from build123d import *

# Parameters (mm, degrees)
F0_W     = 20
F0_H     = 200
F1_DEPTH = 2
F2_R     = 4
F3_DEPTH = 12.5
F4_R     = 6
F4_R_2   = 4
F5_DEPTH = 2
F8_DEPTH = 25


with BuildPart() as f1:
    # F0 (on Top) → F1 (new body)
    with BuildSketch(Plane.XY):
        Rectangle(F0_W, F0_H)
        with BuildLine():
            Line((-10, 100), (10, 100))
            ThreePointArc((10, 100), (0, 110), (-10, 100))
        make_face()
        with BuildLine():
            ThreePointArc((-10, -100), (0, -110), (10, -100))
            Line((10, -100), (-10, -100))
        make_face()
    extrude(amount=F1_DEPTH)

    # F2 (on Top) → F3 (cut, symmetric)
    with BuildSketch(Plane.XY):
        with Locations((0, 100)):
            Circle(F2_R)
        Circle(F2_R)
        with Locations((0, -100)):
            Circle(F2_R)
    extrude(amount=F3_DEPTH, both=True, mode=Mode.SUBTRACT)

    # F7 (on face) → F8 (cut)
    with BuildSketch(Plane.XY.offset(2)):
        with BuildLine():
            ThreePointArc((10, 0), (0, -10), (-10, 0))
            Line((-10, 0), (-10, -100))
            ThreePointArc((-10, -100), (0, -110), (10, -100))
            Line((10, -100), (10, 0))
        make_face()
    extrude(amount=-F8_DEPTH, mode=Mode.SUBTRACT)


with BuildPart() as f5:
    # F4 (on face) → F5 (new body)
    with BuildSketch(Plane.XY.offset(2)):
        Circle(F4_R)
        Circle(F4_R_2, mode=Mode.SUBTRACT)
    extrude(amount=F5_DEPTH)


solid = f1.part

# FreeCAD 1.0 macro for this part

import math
import FreeCAD as App
import Part
import Sketcher

V = App.Vector
Q = App.Units.Quantity

doc = App.newDocument("Part")
body = doc.addObject("PartDesign::Body", "Body")

# Sketch on XY plane
sketch1 = body.newObject("Sketcher::SketchObject", "Sketch")
sketch1.AttachmentSupport = (doc.getObject("XY_Plane"), [""])
sketch1.MapMode = "FlatFace"
sketch1.addGeometry([
    Part.LineSegment(V(-10, 100, 0), V(-10, -100, 0)),
    Part.ArcOfCircle(Part.Circle(V(0, -100, 0), V(0, 0, 1), 10), math.radians(180), math.radians(360)),
    Part.LineSegment(V(10, -100, 0), V(10, 100, 0)),
    Part.ArcOfCircle(Part.Circle(V(0, 100, 0), V(0, 0, 1), 10), math.radians(0), math.radians(180)),
], False)
sketch1.addConstraint([
    Sketcher.Constraint("Tangent", 0, 2, 1, 1),
    Sketcher.Constraint("Tangent", 1, 2, 2, 1),
    Sketcher.Constraint("Tangent", 2, 2, 3, 1),
    Sketcher.Constraint("Tangent", 3, 2, 0, 1),
    Sketcher.Constraint("Vertical", 0),
    Sketcher.Constraint("Vertical", 2),
    Sketcher.Constraint("Symmetric", 1, 3, 3, 3, -1, 1),
    Sketcher.Constraint("Radius", 1, Q("10 mm")),
    Sketcher.Constraint("DistanceY", 0, 2, 0, 1, Q("200 mm")),
])
pad1 = body.newObject("PartDesign::Pad", "Pad")
pad1.Profile = sketch1
pad1.Length = 2

# Sketch on XY plane
sketch2 = body.newObject("Sketcher::SketchObject", "Sketch001")
sketch2.AttachmentSupport = (doc.getObject("XY_Plane"), [""])
sketch2.MapMode = "FlatFace"
sketch2.addGeometry([
    Part.Circle(V(0, 100, 0), V(0, 0, 1), 4),
    Part.Circle(V(0, 0, 0), V(0, 0, 1), 4),
    Part.Circle(V(0, -100, 0), V(0, 0, 1), 4),
], False)
sketch2.addConstraint([
    Sketcher.Constraint("Coincident", 1, 3, -1, 1),
    Sketcher.Constraint("Equal", 0, 1),
    Sketcher.Constraint("Equal", 1, 2),
    Sketcher.Constraint("Symmetric", 0, 3, 2, 3, -1, 1),
    Sketcher.Constraint("PointOnObject", 0, 3, -2),
    Sketcher.Constraint("Diameter", 0, Q("8 mm")),
    Sketcher.Constraint("DistanceY", -1, 1, 0, 3, Q("100 mm")),
])
pocket1 = body.newObject("PartDesign::Pocket", "Pocket")
pocket1.Profile = sketch2
pocket1.Length = 25
pocket1.Midplane = True

# Sketch on XY plane
sketch3 = body.newObject("Sketcher::SketchObject", "Sketch002")
sketch3.AttachmentSupport = (doc.getObject("XY_Plane"), [""])
sketch3.MapMode = "FlatFace"
sketch3.AttachmentOffset = App.Placement(V(0, 0, 2), App.Rotation())
sketch3.addGeometry([
    Part.ArcOfCircle(Part.Circle(V(0, 0, 0), V(0, 0, 1), 10), math.radians(180), math.radians(360)),
    Part.LineSegment(V(-10, 0, 0), V(-10, -100, 0)),
    Part.ArcOfCircle(Part.Circle(V(0, -100, 0), V(0, 0, 1), 10), math.radians(180), math.radians(360)),
    Part.LineSegment(V(10, -100, 0), V(10, 0, 0)),
], False)
sketch3.addConstraint([
    Sketcher.Constraint("Tangent", 0, 1, 1, 1),
    Sketcher.Constraint("Tangent", 1, 2, 2, 1),
    Sketcher.Constraint("Tangent", 2, 2, 3, 1),
    Sketcher.Constraint("Tangent", 3, 2, 0, 2),
    Sketcher.Constraint("Vertical", 1),
    Sketcher.Constraint("Vertical", 3),
    Sketcher.Constraint("Coincident", 0, 3, -1, 1),
    Sketcher.Constraint("Radius", 0, Q("10 mm")),
    Sketcher.Constraint("DistanceY", 1, 2, 1, 1, Q("100 mm")),
])
pocket2 = body.newObject("PartDesign::Pocket", "Pocket001")
pocket2.Profile = sketch3
pocket2.Length = 25
body2 = doc.addObject("PartDesign::Body", "Body001")

# Sketch on XY plane
sketch4 = body2.newObject("Sketcher::SketchObject", "Sketch003")
sketch4.AttachmentSupport = (doc.getObject("XY_Plane001"), [""])
sketch4.MapMode = "FlatFace"
sketch4.AttachmentOffset = App.Placement(V(0, 0, 2), App.Rotation())
sketch4.addGeometry([
    Part.Circle(V(0, 0, 0), V(0, 0, 1), 6),
    Part.Circle(V(0, 0, 0), V(0, 0, 1), 4),
], False)
sketch4.addConstraint([
    Sketcher.Constraint("Coincident", 0, 3, -1, 1),
    Sketcher.Constraint("Coincident", 1, 3, -1, 1),
    Sketcher.Constraint("Diameter", 0, Q("12 mm")),
    Sketcher.Constraint("Diameter", 1, Q("8 mm")),
])
pad2 = body2.newObject("PartDesign::Pad", "Pad001")
pad2.Profile = sketch4
pad2.Length = 2
body2.Visibility = False

doc.recompute()
